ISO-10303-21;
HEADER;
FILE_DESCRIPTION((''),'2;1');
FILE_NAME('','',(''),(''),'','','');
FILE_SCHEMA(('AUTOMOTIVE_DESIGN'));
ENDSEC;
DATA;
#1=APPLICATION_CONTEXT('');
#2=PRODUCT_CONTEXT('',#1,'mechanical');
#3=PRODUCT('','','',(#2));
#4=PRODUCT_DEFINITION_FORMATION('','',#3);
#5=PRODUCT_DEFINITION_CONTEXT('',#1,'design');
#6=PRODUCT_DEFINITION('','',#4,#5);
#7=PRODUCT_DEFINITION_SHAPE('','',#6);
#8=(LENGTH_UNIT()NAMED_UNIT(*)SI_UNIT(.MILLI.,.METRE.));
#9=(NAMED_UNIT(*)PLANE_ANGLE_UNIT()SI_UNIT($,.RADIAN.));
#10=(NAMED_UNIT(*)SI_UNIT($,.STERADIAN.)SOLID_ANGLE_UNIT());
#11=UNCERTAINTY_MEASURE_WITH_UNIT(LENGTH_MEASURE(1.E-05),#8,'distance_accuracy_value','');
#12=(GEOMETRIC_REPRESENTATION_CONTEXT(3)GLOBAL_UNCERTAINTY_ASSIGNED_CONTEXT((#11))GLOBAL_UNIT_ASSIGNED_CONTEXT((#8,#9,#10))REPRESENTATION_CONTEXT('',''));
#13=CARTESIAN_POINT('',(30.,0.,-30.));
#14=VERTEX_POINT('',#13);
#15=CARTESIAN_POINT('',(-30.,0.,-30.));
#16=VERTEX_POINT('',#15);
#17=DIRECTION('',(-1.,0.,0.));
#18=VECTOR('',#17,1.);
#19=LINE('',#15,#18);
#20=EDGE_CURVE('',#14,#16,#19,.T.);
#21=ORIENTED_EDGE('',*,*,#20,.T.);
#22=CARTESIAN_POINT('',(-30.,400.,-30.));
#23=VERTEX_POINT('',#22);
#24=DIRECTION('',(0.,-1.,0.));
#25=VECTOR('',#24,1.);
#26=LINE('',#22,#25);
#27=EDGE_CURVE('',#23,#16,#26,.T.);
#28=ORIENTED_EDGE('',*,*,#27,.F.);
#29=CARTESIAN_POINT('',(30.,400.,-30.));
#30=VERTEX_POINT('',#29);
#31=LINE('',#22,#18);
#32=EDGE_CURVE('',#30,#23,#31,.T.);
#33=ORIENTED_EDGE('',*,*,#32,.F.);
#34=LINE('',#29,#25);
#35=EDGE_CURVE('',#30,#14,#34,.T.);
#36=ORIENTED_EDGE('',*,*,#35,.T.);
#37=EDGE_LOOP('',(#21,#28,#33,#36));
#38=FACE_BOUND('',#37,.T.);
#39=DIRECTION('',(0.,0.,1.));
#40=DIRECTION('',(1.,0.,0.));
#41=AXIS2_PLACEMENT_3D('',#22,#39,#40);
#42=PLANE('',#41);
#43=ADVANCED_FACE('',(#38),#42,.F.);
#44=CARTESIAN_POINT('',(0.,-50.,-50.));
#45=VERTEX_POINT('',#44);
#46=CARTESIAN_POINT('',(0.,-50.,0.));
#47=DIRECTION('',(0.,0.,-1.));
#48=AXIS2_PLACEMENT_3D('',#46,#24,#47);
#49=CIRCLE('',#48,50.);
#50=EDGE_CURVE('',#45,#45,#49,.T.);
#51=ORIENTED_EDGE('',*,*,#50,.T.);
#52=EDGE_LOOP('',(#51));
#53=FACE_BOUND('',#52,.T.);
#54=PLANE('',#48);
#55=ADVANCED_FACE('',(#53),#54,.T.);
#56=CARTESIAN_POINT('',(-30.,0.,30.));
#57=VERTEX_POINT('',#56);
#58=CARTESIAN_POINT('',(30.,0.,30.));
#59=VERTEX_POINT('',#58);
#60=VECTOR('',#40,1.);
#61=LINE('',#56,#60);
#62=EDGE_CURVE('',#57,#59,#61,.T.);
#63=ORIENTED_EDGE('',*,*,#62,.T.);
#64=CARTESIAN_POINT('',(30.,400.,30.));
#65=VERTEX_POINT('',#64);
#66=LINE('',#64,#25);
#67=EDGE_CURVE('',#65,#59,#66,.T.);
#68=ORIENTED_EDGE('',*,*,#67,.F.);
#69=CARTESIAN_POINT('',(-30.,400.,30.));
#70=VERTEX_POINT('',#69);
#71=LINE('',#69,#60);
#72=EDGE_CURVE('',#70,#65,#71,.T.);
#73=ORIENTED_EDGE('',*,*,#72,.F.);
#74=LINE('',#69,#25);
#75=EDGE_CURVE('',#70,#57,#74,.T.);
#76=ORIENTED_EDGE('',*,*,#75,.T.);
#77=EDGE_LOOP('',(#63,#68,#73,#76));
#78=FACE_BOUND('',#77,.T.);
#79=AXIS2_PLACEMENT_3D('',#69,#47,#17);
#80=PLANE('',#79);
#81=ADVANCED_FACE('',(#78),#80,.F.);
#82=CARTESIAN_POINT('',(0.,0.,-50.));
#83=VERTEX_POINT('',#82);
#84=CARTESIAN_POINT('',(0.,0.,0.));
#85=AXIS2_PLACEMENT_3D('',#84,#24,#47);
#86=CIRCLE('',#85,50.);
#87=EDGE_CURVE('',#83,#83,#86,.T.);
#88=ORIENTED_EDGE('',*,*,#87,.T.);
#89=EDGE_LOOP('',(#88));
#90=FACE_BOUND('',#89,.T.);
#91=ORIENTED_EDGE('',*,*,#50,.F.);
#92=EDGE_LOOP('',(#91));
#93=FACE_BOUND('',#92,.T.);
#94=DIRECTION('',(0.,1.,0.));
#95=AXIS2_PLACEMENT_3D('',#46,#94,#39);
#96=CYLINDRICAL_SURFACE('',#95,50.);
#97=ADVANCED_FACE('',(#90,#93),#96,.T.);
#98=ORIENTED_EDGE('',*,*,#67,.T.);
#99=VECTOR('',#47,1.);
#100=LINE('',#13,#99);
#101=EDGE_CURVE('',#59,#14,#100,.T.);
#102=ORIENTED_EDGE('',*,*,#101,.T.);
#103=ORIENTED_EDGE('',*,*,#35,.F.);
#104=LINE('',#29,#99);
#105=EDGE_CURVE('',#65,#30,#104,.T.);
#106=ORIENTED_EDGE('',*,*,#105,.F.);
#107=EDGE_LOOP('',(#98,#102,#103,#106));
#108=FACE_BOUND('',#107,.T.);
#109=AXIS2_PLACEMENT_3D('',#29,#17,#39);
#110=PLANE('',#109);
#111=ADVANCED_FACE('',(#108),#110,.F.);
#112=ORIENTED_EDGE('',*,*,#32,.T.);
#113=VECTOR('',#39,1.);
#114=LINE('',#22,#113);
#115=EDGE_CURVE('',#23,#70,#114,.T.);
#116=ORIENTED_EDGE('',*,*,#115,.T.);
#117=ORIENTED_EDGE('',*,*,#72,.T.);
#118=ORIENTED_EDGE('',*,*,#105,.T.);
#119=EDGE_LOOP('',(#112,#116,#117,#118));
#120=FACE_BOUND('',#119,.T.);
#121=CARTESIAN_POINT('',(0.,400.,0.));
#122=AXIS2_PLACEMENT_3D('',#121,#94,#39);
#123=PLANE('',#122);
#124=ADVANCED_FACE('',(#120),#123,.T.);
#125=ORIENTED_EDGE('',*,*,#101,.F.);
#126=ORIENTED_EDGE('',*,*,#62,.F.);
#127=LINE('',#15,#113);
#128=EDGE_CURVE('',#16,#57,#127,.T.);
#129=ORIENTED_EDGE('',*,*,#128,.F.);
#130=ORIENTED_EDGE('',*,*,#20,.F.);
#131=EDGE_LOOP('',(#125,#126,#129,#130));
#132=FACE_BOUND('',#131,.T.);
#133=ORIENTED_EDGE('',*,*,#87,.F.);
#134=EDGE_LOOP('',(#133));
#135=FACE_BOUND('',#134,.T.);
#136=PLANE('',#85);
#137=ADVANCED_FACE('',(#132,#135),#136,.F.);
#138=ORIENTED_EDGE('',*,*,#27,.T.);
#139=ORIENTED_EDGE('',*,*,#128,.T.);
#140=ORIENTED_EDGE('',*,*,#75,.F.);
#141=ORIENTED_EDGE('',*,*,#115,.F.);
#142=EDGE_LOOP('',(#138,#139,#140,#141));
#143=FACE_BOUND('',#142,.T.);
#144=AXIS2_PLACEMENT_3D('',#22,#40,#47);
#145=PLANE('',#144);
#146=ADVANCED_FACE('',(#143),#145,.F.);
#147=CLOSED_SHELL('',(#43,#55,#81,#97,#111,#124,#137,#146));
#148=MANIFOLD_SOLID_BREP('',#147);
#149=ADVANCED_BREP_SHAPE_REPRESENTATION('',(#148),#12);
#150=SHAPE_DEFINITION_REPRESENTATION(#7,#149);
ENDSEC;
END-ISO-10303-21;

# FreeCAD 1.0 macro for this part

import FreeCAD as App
import Part
import Sketcher

V = App.Vector
Q = App.Units.Quantity


def add_polygon(sketch, points):
    """Adds a closed chain of lines whose ends are joined by coincident constraints."""
    first, n = sketch.GeometryCount, len(points)
    for a, b in zip(points, points[1:] + points[:1]):
        sketch.addGeometry(Part.LineSegment(App.Vector(*a, 0), App.Vector(*b, 0)), False)
    for i in range(n):
        sketch.addConstraint(Sketcher.Constraint("Coincident", first + i, 2, first + (i + 1) % n, 1))

doc = App.newDocument("Part")
params = doc.addObject("Spreadsheet::Sheet", "Params")
for row, (alias, value) in enumerate([
    ("sketch1_width", "60 mm"),
    ("pad1_length", "400 mm"),
    ("sketch2_diameter", "100 mm"),
    ("pad2_length", "50 mm"),
], start=1):
    params.set(f"A{row}", alias)
    params.set(f"B{row}", "=" + value)
    params.setAlias(f"B{row}", alias)

body = doc.addObject("PartDesign::Body", "Body")

# Sketch on XZ plane
sketch1 = body.newObject("Sketcher::SketchObject", "Sketch")
sketch1.AttachmentSupport = (doc.getObject("XZ_Plane"), [""])
sketch1.MapMode = "FlatFace"
add_polygon(sketch1, [(-30, -30), (-30, 30), (30, 30), (30, -30)])  # lines 0-3
sketch1.addConstraint(Sketcher.Constraint("Vertical", 0))
sketch1.addConstraint(Sketcher.Constraint("Horizontal", 1))
sketch1.addConstraint(Sketcher.Constraint("Vertical", 2))
sketch1.addConstraint(Sketcher.Constraint("Horizontal", 3))
sketch1.addConstraint(Sketcher.Constraint("Symmetric", 0, 2, 2, 2, -1, 1))
sketch1.addConstraint(Sketcher.Constraint("Equal", 3, 0))
sketch1.addConstraint(Sketcher.Constraint("DistanceX", 1, 1, 1, 2, Q("60 mm")))
sketch1.setExpression("Constraints[10]", "Params.sketch1_width")
pad1 = body.newObject("PartDesign::Pad", "Pad")
pad1.Profile = sketch1
pad1.setExpression("Length", "Params.pad1_length")
pad1.Reversed = True

# Sketch on XZ plane
sketch2 = body.newObject("Sketcher::SketchObject", "Sketch001")
sketch2.AttachmentSupport = (doc.getObject("XZ_Plane"), [""])
sketch2.MapMode = "FlatFace"
sketch2.addGeometry(Part.Circle(V(0, 0, 0), V(0, 0, 1), 50), False)
sketch2.addConstraint(Sketcher.Constraint("Coincident", 0, 3, -1, 1))
sketch2.addConstraint(Sketcher.Constraint("Diameter", 0, Q("100 mm")))
sketch2.setExpression("Constraints[1]", "Params.sketch2_diameter")
pad2 = body.newObject("PartDesign::Pad", "Pad001")
pad2.Profile = sketch2
pad2.setExpression("Length", "Params.pad2_length")

doc.recompute()
